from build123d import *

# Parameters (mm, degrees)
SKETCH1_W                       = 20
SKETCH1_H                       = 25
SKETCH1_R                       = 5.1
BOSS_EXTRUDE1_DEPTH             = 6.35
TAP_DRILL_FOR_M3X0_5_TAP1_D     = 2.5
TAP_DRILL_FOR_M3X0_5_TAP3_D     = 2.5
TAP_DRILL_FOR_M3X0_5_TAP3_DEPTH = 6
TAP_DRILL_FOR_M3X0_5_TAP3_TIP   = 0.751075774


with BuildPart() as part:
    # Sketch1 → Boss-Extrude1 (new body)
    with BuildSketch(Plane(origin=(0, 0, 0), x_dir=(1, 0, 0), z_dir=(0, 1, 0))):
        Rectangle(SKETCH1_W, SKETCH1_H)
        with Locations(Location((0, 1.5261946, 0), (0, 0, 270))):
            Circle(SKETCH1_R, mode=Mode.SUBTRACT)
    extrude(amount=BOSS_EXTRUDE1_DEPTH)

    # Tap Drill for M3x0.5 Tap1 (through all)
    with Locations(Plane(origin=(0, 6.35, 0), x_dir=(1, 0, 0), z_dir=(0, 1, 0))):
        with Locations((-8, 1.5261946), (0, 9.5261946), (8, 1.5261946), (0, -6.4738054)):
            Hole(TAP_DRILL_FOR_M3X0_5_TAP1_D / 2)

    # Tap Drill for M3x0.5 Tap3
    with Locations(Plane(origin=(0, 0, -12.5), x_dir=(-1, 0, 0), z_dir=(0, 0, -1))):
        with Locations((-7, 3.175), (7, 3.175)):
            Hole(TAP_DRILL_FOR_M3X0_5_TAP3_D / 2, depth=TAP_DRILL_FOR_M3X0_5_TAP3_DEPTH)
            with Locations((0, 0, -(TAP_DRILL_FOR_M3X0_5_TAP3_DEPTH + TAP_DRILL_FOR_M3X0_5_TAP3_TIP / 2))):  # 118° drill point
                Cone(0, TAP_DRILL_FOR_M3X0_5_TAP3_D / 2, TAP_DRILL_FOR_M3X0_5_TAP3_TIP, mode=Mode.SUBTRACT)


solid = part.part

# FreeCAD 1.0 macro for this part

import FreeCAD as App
import Part
import Sketcher
from FreeCAD import Vector

doc = App.newDocument("Part")
body = doc.addObject("PartDesign::Body", "Body")

# Sketch on XZ plane
sketch1 = doc.addObject("Sketcher::SketchObject", "Sketch")
body.addObject(sketch1)
sketch1.AttachmentSupport = (doc.XZ_Plane, [""])
sketch1.MapMode = "FlatFace"
sketch1.addGeometry(Part.LineSegment(Vector(-10, -12, 0), Vector(-10, 12, 0)), False)
sketch1.addGeometry(Part.LineSegment(Vector(-10, 12, 0), Vector(10, 12, 0)), False)
sketch1.addGeometry(Part.LineSegment(Vector(10, 12, 0), Vector(10, -12, 0)), False)
sketch1.addGeometry(Part.LineSegment(Vector(10, -12, 0), Vector(-10, -12, 0)), False)
sketch1.addGeometry(Part.Circle(Vector(0, -2, 0), Vector(0, 0, 1), 5), False)
sketch1.addConstraint(Sketcher.Constraint("Coincident", 0, 2, 1, 1))
sketch1.addConstraint(Sketcher.Constraint("Coincident", 1, 2, 2, 1))
sketch1.addConstraint(Sketcher.Constraint("Coincident", 2, 2, 3, 1))
sketch1.addConstraint(Sketcher.Constraint("Coincident", 3, 2, 0, 1))
sketch1.addConstraint(Sketcher.Constraint("Vertical", 0))
sketch1.addConstraint(Sketcher.Constraint("Horizontal", 1))
sketch1.addConstraint(Sketcher.Constraint("Vertical", 2))
sketch1.addConstraint(Sketcher.Constraint("Horizontal", 3))
sketch1.addConstraint(Sketcher.Constraint("Symmetric", 0, 2, 2, 2, -1, 1))
sketch1.addConstraint(Sketcher.Constraint("PointOnObject", 4, 3, -2))
sketch1.addConstraint(Sketcher.Constraint("Diameter", 4, 10.2))
sketch1.addConstraint(Sketcher.Constraint("DistanceX", 1, 1, 1, 2, 20.0))
sketch1.addConstraint(Sketcher.Constraint("DistanceY", 0, 1, 0, 2, 25.0))
sketch1.addConstraint(Sketcher.Constraint("DistanceY", 4, 3, -1, 1, 1.526195))
pad1 = doc.addObject("PartDesign::Pad", "Pad")
body.addObject(pad1)
pad1.Profile = sketch1
pad1.Length = 6.35
pad1.Reversed = True

# Sketch on XZ plane
sketch2 = doc.addObject("Sketcher::SketchObject", "Sketch001")
body.addObject(sketch2)
sketch2.AttachmentSupport = (doc.XZ_Plane, [""])
sketch2.MapMode = "FlatFace"
sketch2.AttachmentOffset = App.Placement(Vector(0, 0, -6.35), App.Rotation())
sketch2.addGeometry(Part.Circle(Vector(-8, -1.5, 0), Vector(0, 0, 1), 1.2), False)
sketch2.addGeometry(Part.Circle(Vector(0, -9.5, 0), Vector(0, 0, 1), 1.2), False)
sketch2.addGeometry(Part.Circle(Vector(8, -1.5, 0), Vector(0, 0, 1), 1.2), False)
sketch2.addGeometry(Part.Circle(Vector(0, 6.5, 0), Vector(0, 0, 1), 1.2), False)
sketch2.addConstraint(Sketcher.Constraint("Equal", 0, 1))
sketch2.addConstraint(Sketcher.Constraint("Equal", 1, 2))
sketch2.addConstraint(Sketcher.Constraint("Equal", 2, 3))
sketch2.addConstraint(Sketcher.Constraint("Symmetric", 0, 3, 2, 3, -2))
sketch2.addConstraint(Sketcher.Constraint("PointOnObject", 1, 3, -2))
sketch2.addConstraint(Sketcher.Constraint("PointOnObject", 3, 3, -2))
sketch2.addConstraint(Sketcher.Constraint("Diameter", 0, 2.5))
sketch2.addConstraint(Sketcher.Constraint("DistanceX", 0, 3, -1, 1, 8.0))
sketch2.addConstraint(Sketcher.Constraint("DistanceY", 1, 3, 0, 3, 8.0))
sketch2.addConstraint(Sketcher.Constraint("DistanceY", 0, 3, 3, 3, 8.0))
sketch2.addConstraint(Sketcher.Constraint("DistanceY", 0, 3, -1, 1, 1.526195))
doc.recompute()
hole = doc.addObject("PartDesign::Hole", "Hole")
body.addObject(hole)
hole.Profile = sketch2
hole.ThreadType = "None"
hole.Diameter = 2.5
hole.DepthType = "ThroughAll"
hole.Reversed = True

# Sketch on XY plane
sketch3 = doc.addObject("Sketcher::SketchObject", "Sketch002")
body.addObject(sketch3)
sketch3.AttachmentSupport = (doc.XY_Plane, [""])
sketch3.MapMode = "FlatFace"
sketch3.AttachmentOffset = App.Placement(Vector(0, 0, -12.5), App.Rotation())
sketch3.addGeometry(Part.Circle(Vector(7, 3.2, 0), Vector(0, 0, 1), 1.2), False)
sketch3.addGeometry(Part.Circle(Vector(-7, 3.2, 0), Vector(0, 0, 1), 1.2), False)
sketch3.addConstraint(Sketcher.Constraint("Equal", 0, 1))
sketch3.addConstraint(Sketcher.Constraint("Symmetric", 0, 3, 1, 3, -2))
sketch3.addConstraint(Sketcher.Constraint("Diameter", 0, 2.5))
sketch3.addConstraint(Sketcher.Constraint("DistanceX", -1, 1, 0, 3, 7.0))
sketch3.addConstraint(Sketcher.Constraint("DistanceY", -1, 1, 0, 3, 3.175))
doc.recompute()
hole2 = doc.addObject("PartDesign::Hole", "Hole001")
body.addObject(hole2)
hole2.Profile = sketch3
hole2.ThreadType = "None"
hole2.Diameter = 2.5
hole2.DepthType = "Dimension"
hole2.Depth = 6
hole2.DrillPoint = "Angled"
hole2.DrillPointAngle = 118
hole2.Reversed = True

doc.recompute()
